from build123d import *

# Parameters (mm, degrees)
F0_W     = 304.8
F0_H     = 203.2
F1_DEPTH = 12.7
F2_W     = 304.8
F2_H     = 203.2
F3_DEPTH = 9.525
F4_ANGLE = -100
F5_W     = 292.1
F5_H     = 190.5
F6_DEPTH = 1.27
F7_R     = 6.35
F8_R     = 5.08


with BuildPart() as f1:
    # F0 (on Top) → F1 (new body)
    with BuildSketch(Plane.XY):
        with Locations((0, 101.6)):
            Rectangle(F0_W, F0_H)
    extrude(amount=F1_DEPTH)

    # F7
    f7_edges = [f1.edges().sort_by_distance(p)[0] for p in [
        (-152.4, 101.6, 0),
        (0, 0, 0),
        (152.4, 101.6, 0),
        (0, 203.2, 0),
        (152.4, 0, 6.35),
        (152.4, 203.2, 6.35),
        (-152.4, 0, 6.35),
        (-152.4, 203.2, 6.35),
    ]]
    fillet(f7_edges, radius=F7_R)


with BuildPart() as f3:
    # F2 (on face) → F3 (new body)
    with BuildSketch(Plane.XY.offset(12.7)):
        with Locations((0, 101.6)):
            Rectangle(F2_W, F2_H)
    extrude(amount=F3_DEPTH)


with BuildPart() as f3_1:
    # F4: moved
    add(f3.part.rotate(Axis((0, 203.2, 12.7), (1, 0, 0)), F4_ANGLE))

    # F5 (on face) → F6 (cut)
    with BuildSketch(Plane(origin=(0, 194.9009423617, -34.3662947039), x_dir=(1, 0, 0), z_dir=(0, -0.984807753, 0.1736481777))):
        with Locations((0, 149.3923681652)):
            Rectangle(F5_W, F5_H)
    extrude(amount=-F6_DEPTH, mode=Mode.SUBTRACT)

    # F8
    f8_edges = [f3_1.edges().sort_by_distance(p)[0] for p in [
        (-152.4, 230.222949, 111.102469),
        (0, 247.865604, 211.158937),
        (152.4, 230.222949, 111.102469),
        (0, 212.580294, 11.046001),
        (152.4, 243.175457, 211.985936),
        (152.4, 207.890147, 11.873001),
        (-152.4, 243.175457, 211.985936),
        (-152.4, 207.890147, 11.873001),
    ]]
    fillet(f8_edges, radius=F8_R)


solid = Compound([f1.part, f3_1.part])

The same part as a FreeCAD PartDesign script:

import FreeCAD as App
import Part
import Sketcher
Q = App.Units.Quantity


def edges_at(feature, points):
    """Names of the edges that pass closest to the given points."""
    edges = feature.Shape.Edges
    near = lambda p: min(range(len(edges)), key=lambda i: edges[i].distToShape(Part.Vertex(*p))[0])
    return sorted({f"Edge{near(p) + 1}" for p in points})

doc = App.newDocument("Part")
body = doc.addObject("PartDesign::Body", "Body")

# Sketch on XY plane
sketch1 = doc.addObject("Sketcher::SketchObject", "Sketch")
body.addObject(sketch1)
sketch1.AttachmentSupport = (doc.XY_Plane, [""])
sketch1.MapMode = "FlatFace"
sketch1.addGeometry([
    Part.LineSegment(App.Vector(-152.4, 203.2, 0), App.Vector(-152.4, 0, 0)),
    Part.LineSegment(App.Vector(-152.4, 0, 0), App.Vector(152.4, 0, 0)),
    Part.LineSegment(App.Vector(152.4, 0, 0), App.Vector(152.4, 203.2, 0)),
    Part.LineSegment(App.Vector(152.4, 203.2, 0), App.Vector(-152.4, 203.2, 0)),
], False)
sketch1.addConstraint([
    Sketcher.Constraint("Coincident", 0, 2, 1, 1),
    Sketcher.Constraint("Coincident", 1, 2, 2, 1),
    Sketcher.Constraint("Coincident", 2, 2, 3, 1),
    Sketcher.Constraint("Coincident", 3, 2, 0, 1),
    Sketcher.Constraint("Vertical", 0),
    Sketcher.Constraint("Horizontal", 1),
    Sketcher.Constraint("Vertical", 2),
    Sketcher.Constraint("Horizontal", 3),
    Sketcher.Constraint("Symmetric", 0, 2, 1, 2, -1, 1),
    Sketcher.Constraint("DistanceX", 1, 1, 1, 2, Q("12 in")),
    Sketcher.Constraint("DistanceY", 0, 2, 0, 1, Q("8 in")),
])
pad1 = doc.addObject("PartDesign::Pad", "Pad")
body.addObject(pad1)
pad1.Profile = sketch1
pad1.Length = Q("0.5 in")
doc.recompute()

fillet = doc.addObject("PartDesign::Fillet", "Fillet")
body.addObject(fillet)
fillet.Base = (pad1, edges_at(pad1, [
    (-152.4, 101.6, 0),
    (0, 0, 0),
    (152.4, 101.6, 0),
    (0, 203.2, 0),
    (152.4, 0, 6.35),
    (152.4, 203.2, 6.35),
    (-152.4, 0, 6.35),
    (-152.4, 203.2, 6.35),
]))
fillet.Radius = Q("0.25 in")
body2 = doc.addObject("PartDesign::Body", "Body001")

# Sketch on XY plane
sketch2 = doc.addObject("Sketcher::SketchObject", "Sketch001")
body2.addObject(sketch2)
sketch2.AttachmentSupport = (doc.getObject("XY_Plane001"), [""])
sketch2.MapMode = "FlatFace"
sketch2.AttachmentOffset = App.Placement(App.Vector(0, 0, 0.5 * 25.4), App.Rotation())
sketch2.addGeometry([
    Part.LineSegment(App.Vector(-152.4, 203.2, 0), App.Vector(-152.4, 0, 0)),
    Part.LineSegment(App.Vector(-152.4, 0, 0), App.Vector(152.4, 0, 0)),
    Part.LineSegment(App.Vector(152.4, 0, 0), App.Vector(152.4, 203.2, 0)),
    Part.LineSegment(App.Vector(152.4, 203.2, 0), App.Vector(-152.4, 203.2, 0)),
], False)
sketch2.addConstraint([
    Sketcher.Constraint("Coincident", 0, 2, 1, 1),
    Sketcher.Constraint("Coincident", 1, 2, 2, 1),
    Sketcher.Constraint("Coincident", 2, 2, 3, 1),
    Sketcher.Constraint("Coincident", 3, 2, 0, 1),
    Sketcher.Constraint("Vertical", 0),
    Sketcher.Constraint("Horizontal", 1),
    Sketcher.Constraint("Vertical", 2),
    Sketcher.Constraint("Horizontal", 3),
    Sketcher.Constraint("Symmetric", 0, 2, 1, 2, -1, 1),
    Sketcher.Constraint("DistanceX", 1, 1, 1, 2, Q("12 in")),
    Sketcher.Constraint("DistanceY", 0, 2, 0, 1, Q("8 in")),
])
pad2 = doc.addObject("PartDesign::Pad", "Pad001")
body2.addObject(pad2)
pad2.Profile = sketch2
pad2.Length = Q("0.375 in")
body3 = doc.addObject("PartDesign::Body", "Body002")
doc.recompute()

body2.Placement = App.Placement(App.Vector(0, 225.978251, 215.018267), App.Rotation(App.Vector(1, 0, 0), 260))
boolean = doc.addObject("PartDesign::Boolean", "Boolean")
body3.addObject(boolean)
boolean.Type = "Fuse"
boolean.addObjects([body2])

# Sketch on an angled plane
sketch3 = doc.addObject("Sketcher::SketchObject", "Sketch002")
body3.addObject(sketch3)
sketch3.Placement = App.Placement(App.Vector(0, 194.900942, -34.366295), App.Rotation(App.Vector(1, 0, 0), App.Vector(0, 0.173648178, 0.984807753), App.Vector(0, -0.984807753, 0.173648178), "ZXY"))
sketch3.addGeometry([
    Part.LineSegment(App.Vector(-146.05, 244.642368, 0), App.Vector(-146.05, 54.142368, 0)),
    Part.LineSegment(App.Vector(-146.05, 54.142368, 0), App.Vector(146.05, 54.142368, 0)),
    Part.LineSegment(App.Vector(146.05, 54.142368, 0), App.Vector(146.05, 244.642368, 0)),
    Part.LineSegment(App.Vector(146.05, 244.642368, 0), App.Vector(-146.05, 244.642368, 0)),
], False)
sketch3.addConstraint([
    Sketcher.Constraint("Coincident", 0, 2, 1, 1),
    Sketcher.Constraint("Coincident", 1, 2, 2, 1),
    Sketcher.Constraint("Coincident", 2, 2, 3, 1),
    Sketcher.Constraint("Coincident", 3, 2, 0, 1),
    Sketcher.Constraint("Vertical", 0),
    Sketcher.Constraint("Horizontal", 1),
    Sketcher.Constraint("Vertical", 2),
    Sketcher.Constraint("Horizontal", 3),
    Sketcher.Constraint("DistanceX", 1, 1, 1, 2, Q("11.5 in")),
    Sketcher.Constraint("DistanceY", 0, 2, 0, 1, Q("7.5 in")),
    Sketcher.Constraint("DistanceX", 0, 2, -1, 1, Q("5.75 in")),
    Sketcher.Constraint("DistanceY", -1, 1, 0, 2, Q("54.142368 mm")),
])
pocket1 = doc.addObject("PartDesign::Pocket", "Pocket")
body3.addObject(pocket1)
pocket1.Profile = sketch3
pocket1.Length = Q("0.05 in")
doc.recompute()

fillet2 = doc.addObject("PartDesign::Fillet", "Fillet001")
body3.addObject(fillet2)
fillet2.Base = (pocket1, edges_at(pocket1, [
    (-152.4, 230.223, 111.102),
    (0, 247.866, 211.159),
    (152.4, 230.223, 111.102),
    (0, 212.58, 11.046),
    (152.4, 243.175, 211.986),
    (152.4, 207.89, 11.873),
    (-152.4, 243.175, 211.986),
    (-152.4, 207.89, 11.873),
]))
fillet2.Radius = Q("0.2 in")

doc.recompute()
